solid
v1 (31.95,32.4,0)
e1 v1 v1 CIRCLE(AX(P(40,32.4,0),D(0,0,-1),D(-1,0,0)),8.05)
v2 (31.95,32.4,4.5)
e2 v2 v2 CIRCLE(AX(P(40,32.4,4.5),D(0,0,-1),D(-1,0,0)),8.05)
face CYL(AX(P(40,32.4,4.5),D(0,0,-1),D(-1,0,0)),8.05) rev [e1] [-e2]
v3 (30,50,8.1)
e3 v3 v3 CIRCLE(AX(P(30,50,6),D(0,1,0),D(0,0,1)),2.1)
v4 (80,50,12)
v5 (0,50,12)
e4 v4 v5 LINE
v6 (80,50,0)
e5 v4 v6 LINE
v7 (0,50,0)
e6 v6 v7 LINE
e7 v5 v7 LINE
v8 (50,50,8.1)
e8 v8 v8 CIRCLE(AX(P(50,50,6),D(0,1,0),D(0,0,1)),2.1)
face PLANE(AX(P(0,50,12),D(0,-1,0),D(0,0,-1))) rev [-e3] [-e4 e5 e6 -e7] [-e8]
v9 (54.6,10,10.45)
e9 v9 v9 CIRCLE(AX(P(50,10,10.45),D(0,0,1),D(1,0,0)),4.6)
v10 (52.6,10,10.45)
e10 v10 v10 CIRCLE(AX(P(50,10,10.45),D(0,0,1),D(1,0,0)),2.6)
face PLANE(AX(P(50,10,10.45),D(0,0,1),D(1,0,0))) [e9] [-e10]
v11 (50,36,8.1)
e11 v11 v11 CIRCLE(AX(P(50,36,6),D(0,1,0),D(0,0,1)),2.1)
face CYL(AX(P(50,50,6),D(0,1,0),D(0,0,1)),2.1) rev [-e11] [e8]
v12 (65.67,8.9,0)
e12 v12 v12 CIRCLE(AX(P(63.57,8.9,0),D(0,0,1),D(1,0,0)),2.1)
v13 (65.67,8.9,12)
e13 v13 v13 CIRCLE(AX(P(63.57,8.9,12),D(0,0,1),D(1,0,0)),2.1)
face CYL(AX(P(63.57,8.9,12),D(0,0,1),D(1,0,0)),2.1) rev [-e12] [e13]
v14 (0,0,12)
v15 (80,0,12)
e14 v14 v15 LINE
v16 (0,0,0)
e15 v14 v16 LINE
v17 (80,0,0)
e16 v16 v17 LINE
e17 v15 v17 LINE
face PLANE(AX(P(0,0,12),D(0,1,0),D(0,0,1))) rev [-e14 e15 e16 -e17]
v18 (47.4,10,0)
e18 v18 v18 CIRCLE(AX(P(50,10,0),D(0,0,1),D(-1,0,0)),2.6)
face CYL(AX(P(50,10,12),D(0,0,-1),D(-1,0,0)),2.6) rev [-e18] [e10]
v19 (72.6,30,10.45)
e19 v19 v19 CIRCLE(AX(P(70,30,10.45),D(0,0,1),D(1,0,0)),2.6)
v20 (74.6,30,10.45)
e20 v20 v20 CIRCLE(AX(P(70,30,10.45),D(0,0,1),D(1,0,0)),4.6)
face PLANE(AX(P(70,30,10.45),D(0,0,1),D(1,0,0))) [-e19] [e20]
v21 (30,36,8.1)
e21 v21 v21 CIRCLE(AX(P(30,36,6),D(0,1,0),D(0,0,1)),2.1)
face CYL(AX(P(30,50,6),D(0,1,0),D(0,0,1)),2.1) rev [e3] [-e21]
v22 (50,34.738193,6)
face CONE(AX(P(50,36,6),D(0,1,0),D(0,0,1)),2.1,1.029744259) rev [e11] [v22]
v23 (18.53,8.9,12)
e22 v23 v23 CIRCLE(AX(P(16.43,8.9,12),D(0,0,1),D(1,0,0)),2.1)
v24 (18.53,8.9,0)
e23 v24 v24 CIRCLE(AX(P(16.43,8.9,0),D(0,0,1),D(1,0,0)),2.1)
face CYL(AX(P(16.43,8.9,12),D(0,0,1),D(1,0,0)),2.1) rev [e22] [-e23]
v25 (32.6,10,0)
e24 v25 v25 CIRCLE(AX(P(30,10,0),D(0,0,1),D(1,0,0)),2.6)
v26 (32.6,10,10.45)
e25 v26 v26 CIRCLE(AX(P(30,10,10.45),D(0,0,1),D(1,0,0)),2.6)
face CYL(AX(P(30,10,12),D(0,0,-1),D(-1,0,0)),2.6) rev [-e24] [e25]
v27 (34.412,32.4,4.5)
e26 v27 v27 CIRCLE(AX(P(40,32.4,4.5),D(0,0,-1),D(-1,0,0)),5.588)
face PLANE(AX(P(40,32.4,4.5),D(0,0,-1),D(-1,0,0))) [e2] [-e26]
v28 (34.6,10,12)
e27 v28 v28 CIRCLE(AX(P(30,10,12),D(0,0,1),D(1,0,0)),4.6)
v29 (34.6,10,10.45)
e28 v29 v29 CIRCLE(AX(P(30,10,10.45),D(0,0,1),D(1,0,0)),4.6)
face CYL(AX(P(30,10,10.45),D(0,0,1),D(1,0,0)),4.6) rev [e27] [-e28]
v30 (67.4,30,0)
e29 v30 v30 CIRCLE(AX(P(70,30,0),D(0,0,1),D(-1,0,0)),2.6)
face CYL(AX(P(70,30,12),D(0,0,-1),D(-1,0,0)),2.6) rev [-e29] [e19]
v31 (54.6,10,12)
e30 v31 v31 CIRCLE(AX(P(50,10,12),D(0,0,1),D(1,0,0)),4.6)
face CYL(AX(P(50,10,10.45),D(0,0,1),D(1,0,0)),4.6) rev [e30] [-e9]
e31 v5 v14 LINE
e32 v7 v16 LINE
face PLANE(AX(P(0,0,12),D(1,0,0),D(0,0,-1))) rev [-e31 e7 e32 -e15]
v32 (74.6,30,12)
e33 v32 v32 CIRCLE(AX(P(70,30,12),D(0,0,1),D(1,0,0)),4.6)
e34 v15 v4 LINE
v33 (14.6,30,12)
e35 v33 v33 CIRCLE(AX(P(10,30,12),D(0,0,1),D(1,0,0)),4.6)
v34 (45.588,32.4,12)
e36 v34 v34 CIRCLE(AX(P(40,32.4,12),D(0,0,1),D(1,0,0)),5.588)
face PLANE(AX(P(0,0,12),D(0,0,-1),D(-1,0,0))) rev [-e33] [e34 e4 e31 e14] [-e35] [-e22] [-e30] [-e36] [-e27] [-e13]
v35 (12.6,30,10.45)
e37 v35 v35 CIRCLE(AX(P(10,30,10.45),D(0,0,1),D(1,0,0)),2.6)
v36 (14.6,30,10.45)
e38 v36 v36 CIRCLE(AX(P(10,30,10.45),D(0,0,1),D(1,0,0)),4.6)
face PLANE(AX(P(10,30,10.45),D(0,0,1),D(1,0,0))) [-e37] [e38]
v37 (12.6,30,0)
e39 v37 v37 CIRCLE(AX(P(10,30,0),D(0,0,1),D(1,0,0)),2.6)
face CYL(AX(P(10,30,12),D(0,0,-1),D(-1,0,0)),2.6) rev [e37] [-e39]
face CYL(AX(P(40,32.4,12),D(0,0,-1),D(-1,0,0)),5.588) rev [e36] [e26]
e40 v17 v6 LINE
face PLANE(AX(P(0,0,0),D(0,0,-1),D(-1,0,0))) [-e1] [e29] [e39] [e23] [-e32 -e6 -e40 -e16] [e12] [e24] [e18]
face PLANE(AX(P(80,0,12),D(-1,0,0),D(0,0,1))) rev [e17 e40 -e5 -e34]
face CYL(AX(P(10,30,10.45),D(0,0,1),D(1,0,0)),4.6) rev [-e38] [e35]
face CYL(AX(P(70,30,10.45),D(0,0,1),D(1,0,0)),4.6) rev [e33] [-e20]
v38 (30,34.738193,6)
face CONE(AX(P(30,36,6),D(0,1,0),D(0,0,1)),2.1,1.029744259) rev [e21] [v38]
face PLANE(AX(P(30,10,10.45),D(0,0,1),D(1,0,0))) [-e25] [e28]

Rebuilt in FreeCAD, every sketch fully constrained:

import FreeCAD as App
import Part
import Sketcher

V = App.Vector
Q = App.Units.Quantity

doc = App.newDocument("Part")
params = doc.addObject("Spreadsheet::Sheet", "Params")
for row, (alias, value) in enumerate([
    ("sketch1_diameter", "5.2 mm"),
    ("sketch1_width", "80 mm"),
    ("sketch1_height", "50 mm"),
    ("pad1_length", "12 mm"),
    ("sketch2_diameter", "9.2 mm"),
    ("pocket1_length", "1.55 mm"),
    ("sketch3_diameter", "4.2 mm"),
    ("hole_diameter", "4.2 mm"),
    ("sketch4_diameter", "4.2 mm"),
    ("hole2_diameter", "4.2 mm"),
    ("hole2_depth", "14 mm"),
    ("sketch5_diameter", "16.1 mm"),
    ("pocket2_length", "4.5 mm"),
], start=1):
    params.set(f"A{row}", alias)
    params.set(f"B{row}", "=" + value)
    params.setAlias(f"B{row}", alias)

body = doc.addObject("PartDesign::Body", "Body")

sketch1 = body.newObject("Sketcher::SketchObject", "Sketch")
sketch1.AttachmentSupport = (doc.getObject("XY_Plane"), [""])
sketch1.MapMode = "FlatFace"
sketch1.addGeometry([
    Part.LineSegment(V(0, 50, 0), V(0, 0, 0)),
    Part.LineSegment(V(0, 0, 0), V(80, 0, 0)),
    Part.LineSegment(V(80, 0, 0), V(80, 50, 0)),
    Part.LineSegment(V(80, 50, 0), V(0, 50, 0)),
    Part.Circle(V(30, 10, 0), V(0, 0, 1), 2.6),
    Part.Circle(V(50, 10, 0), V(0, 0, 1), 2.6),
    Part.Circle(V(10, 30, 0), V(0, 0, 1), 2.6),
    Part.Circle(V(70, 30, 0), V(0, 0, 1), 2.6),
    Part.Circle(V(40, 32.4, 0), V(0, 0, 1), 5.6),
], False)
sketch1.addConstraint([
    Sketcher.Constraint("Coincident", 0, 2, 1, 1),
    Sketcher.Constraint("Coincident", 1, 2, 2, 1),
    Sketcher.Constraint("Coincident", 2, 2, 3, 1),
    Sketcher.Constraint("Coincident", 3, 2, 0, 1),
    Sketcher.Constraint("Vertical", 0),
    Sketcher.Constraint("Horizontal", 1),
    Sketcher.Constraint("Vertical", 2),
    Sketcher.Constraint("Horizontal", 3),
    Sketcher.Constraint("Coincident", 0, 2, -1, 1),
    Sketcher.Constraint("Equal", 4, 5),
    Sketcher.Constraint("Equal", 5, 6),
    Sketcher.Constraint("Equal", 6, 7),
    Sketcher.Constraint("Horizontal", 4, 3, 5, 3),
    Sketcher.Constraint("Horizontal", 6, 3, 7, 3),
    Sketcher.Constraint("Diameter", 4, Q("5.2 mm")),
    Sketcher.Constraint("DistanceX", 1, 1, 1, 2, Q("80 mm")),
    Sketcher.Constraint("DistanceY", 0, 2, 0, 1, Q("50 mm")),
    Sketcher.Constraint("Diameter", 8, Q("11.176 mm")),
    Sketcher.Constraint("DistanceX", -1, 1, 4, 3, Q("30 mm")),
    Sketcher.Constraint("DistanceY", -1, 1, 4, 3, Q("10 mm")),
    Sketcher.Constraint("DistanceX", -1, 1, 5, 3, Q("50 mm")),
    Sketcher.Constraint("DistanceX", -1, 1, 6, 3, Q("10 mm")),
    Sketcher.Constraint("DistanceY", -1, 1, 6, 3, Q("30 mm")),
    Sketcher.Constraint("DistanceX", -1, 1, 7, 3, Q("70 mm")),
    Sketcher.Constraint("DistanceX", -1, 1, 8, 3, Q("40 mm")),
    Sketcher.Constraint("DistanceY", -1, 1, 8, 3, Q("32.4 mm")),
])
sketch1.setExpression("Constraints[14]", "Params.sketch1_diameter")
sketch1.setExpression("Constraints[15]", "Params.sketch1_width")
sketch1.setExpression("Constraints[16]", "Params.sketch1_height")
pad1 = body.newObject("PartDesign::Pad", "Pad")
pad1.Profile = sketch1
pad1.setExpression("Length", "Params.pad1_length")

sketch2 = body.newObject("Sketcher::SketchObject", "Sketch001")
sketch2.AttachmentSupport = (doc.getObject("XY_Plane"), [""])
sketch2.MapMode = "FlatFace"
sketch2.AttachmentOffset = App.Placement(V(0, 0, 12), App.Rotation())
sketch2.addGeometry([
    Part.Circle(V(10, 30, 0), V(0, 0, 1), 4.6),
    Part.Circle(V(30, 10, 0), V(0, 0, 1), 4.6),
    Part.Circle(V(50, 10, 0), V(0, 0, 1), 4.6),
    Part.Circle(V(70, 30, 0), V(0, 0, 1), 4.6),
], False)
sketch2.addConstraint([
    Sketcher.Constraint("Equal", 0, 1),
    Sketcher.Constraint("Equal", 1, 2),
    Sketcher.Constraint("Equal", 2, 3),
    Sketcher.Constraint("Horizontal", 1, 3, 2, 3),
    Sketcher.Constraint("Horizontal", 0, 3, 3, 3),
    Sketcher.Constraint("Diameter", 0, Q("9.2 mm")),
    Sketcher.Constraint("DistanceX", -1, 1, 0, 3, Q("10 mm")),
    Sketcher.Constraint("DistanceY", -1, 1, 0, 3, Q("30 mm")),
    Sketcher.Constraint("DistanceX", -1, 1, 1, 3, Q("30 mm")),
    Sketcher.Constraint("DistanceY", -1, 1, 1, 3, Q("10 mm")),
    Sketcher.Constraint("DistanceX", -1, 1, 2, 3, Q("50 mm")),
    Sketcher.Constraint("DistanceX", -1, 1, 3, 3, Q("70 mm")),
])
sketch2.setExpression("Constraints[5]", "Params.sketch2_diameter")
pocket1 = body.newObject("PartDesign::Pocket", "Pocket")
pocket1.Profile = sketch2
pocket1.setExpression("Length", "Params.pocket1_length")

sketch3 = body.newObject("Sketcher::SketchObject", "Sketch002")
sketch3.AttachmentSupport = (doc.getObject("XY_Plane"), [""])
sketch3.MapMode = "FlatFace"
sketch3.AttachmentOffset = App.Placement(V(0, 0, 12), App.Rotation())
sketch3.addGeometry([
    Part.Circle(V(16.4, 8.9, 0), V(0, 0, 1), 2.1),
    Part.Circle(V(63.6, 8.9, 0), V(0, 0, 1), 2.1),
], False)
sketch3.addConstraint([
    Sketcher.Constraint("Equal", 0, 1),
    Sketcher.Constraint("Horizontal", 0, 3, 1, 3),
    Sketcher.Constraint("Diameter", 0, Q("4.2 mm")),
    Sketcher.Constraint("DistanceY", -1, 1, 0, 3, Q("8.9 mm")),
    Sketcher.Constraint("DistanceX", -1, 1, 0, 3, Q("16.43 mm")),
    Sketcher.Constraint("DistanceX", -1, 1, 1, 3, Q("63.57 mm")),
])
sketch3.setExpression("Constraints[2]", "Params.sketch3_diameter")
doc.recompute()
hole = body.newObject("PartDesign::Hole", "Hole")
hole.Profile = sketch3
hole.ThreadType = "None"
hole.setExpression("Diameter", "Params.hole_diameter")
hole.DepthType = "ThroughAll"

sketch4 = body.newObject("Sketcher::SketchObject", "Sketch003")
sketch4.AttachmentSupport = (doc.getObject("XZ_Plane"), [""])
sketch4.MapMode = "FlatFace"
sketch4.AttachmentOffset = App.Placement(V(0, 0, -50), App.Rotation())
sketch4.addGeometry([
    Part.Circle(V(30, 6, 0), V(0, 0, 1), 2.1),
    Part.Circle(V(50, 6, 0), V(0, 0, 1), 2.1),
], False)
sketch4.addConstraint([
    Sketcher.Constraint("Equal", 0, 1),
    Sketcher.Constraint("Horizontal", 0, 3, 1, 3),
    Sketcher.Constraint("Diameter", 0, Q("4.2 mm")),
    Sketcher.Constraint("DistanceX", -1, 1, 0, 3, Q("30 mm")),
    Sketcher.Constraint("DistanceY", -1, 1, 0, 3, Q("6 mm")),
    Sketcher.Constraint("DistanceX", -1, 1, 1, 3, Q("50 mm")),
])
sketch4.setExpression("Constraints[2]", "Params.sketch4_diameter")
doc.recompute()
hole2 = body.newObject("PartDesign::Hole", "Hole001")
hole2.Profile = sketch4
hole2.ThreadType = "None"
hole2.setExpression("Diameter", "Params.hole2_diameter")
hole2.DepthType = "Dimension"
hole2.setExpression("Depth", "Params.hole2_depth")
hole2.DrillPoint = "Angled"
hole2.DrillPointAngle = 118
hole2.Reversed = True

sketch5 = body.newObject("Sketcher::SketchObject", "Sketch004")
sketch5.AttachmentSupport = (doc.getObject("XY_Plane"), [""])
sketch5.MapMode = "FlatFace"
sketch5.addGeometry(Part.Circle(V(40, 32, 0), V(0, 0, 1), 8), False)
sketch5.addConstraint([
    Sketcher.Constraint("Diameter", 0, Q("16.1 mm")),
    Sketcher.Constraint("DistanceX", -1, 1, 0, 3, Q("40 mm")),
    Sketcher.Constraint("DistanceY", -1, 1, 0, 3, Q("32.4 mm")),
])
sketch5.setExpression("Constraints[0]", "Params.sketch5_diameter")
pocket2 = body.newObject("PartDesign::Pocket", "Pocket001")
pocket2.Profile = sketch5
pocket2.setExpression("Length", "Params.pocket2_length")
pocket2.Reversed = True

doc.recompute()
